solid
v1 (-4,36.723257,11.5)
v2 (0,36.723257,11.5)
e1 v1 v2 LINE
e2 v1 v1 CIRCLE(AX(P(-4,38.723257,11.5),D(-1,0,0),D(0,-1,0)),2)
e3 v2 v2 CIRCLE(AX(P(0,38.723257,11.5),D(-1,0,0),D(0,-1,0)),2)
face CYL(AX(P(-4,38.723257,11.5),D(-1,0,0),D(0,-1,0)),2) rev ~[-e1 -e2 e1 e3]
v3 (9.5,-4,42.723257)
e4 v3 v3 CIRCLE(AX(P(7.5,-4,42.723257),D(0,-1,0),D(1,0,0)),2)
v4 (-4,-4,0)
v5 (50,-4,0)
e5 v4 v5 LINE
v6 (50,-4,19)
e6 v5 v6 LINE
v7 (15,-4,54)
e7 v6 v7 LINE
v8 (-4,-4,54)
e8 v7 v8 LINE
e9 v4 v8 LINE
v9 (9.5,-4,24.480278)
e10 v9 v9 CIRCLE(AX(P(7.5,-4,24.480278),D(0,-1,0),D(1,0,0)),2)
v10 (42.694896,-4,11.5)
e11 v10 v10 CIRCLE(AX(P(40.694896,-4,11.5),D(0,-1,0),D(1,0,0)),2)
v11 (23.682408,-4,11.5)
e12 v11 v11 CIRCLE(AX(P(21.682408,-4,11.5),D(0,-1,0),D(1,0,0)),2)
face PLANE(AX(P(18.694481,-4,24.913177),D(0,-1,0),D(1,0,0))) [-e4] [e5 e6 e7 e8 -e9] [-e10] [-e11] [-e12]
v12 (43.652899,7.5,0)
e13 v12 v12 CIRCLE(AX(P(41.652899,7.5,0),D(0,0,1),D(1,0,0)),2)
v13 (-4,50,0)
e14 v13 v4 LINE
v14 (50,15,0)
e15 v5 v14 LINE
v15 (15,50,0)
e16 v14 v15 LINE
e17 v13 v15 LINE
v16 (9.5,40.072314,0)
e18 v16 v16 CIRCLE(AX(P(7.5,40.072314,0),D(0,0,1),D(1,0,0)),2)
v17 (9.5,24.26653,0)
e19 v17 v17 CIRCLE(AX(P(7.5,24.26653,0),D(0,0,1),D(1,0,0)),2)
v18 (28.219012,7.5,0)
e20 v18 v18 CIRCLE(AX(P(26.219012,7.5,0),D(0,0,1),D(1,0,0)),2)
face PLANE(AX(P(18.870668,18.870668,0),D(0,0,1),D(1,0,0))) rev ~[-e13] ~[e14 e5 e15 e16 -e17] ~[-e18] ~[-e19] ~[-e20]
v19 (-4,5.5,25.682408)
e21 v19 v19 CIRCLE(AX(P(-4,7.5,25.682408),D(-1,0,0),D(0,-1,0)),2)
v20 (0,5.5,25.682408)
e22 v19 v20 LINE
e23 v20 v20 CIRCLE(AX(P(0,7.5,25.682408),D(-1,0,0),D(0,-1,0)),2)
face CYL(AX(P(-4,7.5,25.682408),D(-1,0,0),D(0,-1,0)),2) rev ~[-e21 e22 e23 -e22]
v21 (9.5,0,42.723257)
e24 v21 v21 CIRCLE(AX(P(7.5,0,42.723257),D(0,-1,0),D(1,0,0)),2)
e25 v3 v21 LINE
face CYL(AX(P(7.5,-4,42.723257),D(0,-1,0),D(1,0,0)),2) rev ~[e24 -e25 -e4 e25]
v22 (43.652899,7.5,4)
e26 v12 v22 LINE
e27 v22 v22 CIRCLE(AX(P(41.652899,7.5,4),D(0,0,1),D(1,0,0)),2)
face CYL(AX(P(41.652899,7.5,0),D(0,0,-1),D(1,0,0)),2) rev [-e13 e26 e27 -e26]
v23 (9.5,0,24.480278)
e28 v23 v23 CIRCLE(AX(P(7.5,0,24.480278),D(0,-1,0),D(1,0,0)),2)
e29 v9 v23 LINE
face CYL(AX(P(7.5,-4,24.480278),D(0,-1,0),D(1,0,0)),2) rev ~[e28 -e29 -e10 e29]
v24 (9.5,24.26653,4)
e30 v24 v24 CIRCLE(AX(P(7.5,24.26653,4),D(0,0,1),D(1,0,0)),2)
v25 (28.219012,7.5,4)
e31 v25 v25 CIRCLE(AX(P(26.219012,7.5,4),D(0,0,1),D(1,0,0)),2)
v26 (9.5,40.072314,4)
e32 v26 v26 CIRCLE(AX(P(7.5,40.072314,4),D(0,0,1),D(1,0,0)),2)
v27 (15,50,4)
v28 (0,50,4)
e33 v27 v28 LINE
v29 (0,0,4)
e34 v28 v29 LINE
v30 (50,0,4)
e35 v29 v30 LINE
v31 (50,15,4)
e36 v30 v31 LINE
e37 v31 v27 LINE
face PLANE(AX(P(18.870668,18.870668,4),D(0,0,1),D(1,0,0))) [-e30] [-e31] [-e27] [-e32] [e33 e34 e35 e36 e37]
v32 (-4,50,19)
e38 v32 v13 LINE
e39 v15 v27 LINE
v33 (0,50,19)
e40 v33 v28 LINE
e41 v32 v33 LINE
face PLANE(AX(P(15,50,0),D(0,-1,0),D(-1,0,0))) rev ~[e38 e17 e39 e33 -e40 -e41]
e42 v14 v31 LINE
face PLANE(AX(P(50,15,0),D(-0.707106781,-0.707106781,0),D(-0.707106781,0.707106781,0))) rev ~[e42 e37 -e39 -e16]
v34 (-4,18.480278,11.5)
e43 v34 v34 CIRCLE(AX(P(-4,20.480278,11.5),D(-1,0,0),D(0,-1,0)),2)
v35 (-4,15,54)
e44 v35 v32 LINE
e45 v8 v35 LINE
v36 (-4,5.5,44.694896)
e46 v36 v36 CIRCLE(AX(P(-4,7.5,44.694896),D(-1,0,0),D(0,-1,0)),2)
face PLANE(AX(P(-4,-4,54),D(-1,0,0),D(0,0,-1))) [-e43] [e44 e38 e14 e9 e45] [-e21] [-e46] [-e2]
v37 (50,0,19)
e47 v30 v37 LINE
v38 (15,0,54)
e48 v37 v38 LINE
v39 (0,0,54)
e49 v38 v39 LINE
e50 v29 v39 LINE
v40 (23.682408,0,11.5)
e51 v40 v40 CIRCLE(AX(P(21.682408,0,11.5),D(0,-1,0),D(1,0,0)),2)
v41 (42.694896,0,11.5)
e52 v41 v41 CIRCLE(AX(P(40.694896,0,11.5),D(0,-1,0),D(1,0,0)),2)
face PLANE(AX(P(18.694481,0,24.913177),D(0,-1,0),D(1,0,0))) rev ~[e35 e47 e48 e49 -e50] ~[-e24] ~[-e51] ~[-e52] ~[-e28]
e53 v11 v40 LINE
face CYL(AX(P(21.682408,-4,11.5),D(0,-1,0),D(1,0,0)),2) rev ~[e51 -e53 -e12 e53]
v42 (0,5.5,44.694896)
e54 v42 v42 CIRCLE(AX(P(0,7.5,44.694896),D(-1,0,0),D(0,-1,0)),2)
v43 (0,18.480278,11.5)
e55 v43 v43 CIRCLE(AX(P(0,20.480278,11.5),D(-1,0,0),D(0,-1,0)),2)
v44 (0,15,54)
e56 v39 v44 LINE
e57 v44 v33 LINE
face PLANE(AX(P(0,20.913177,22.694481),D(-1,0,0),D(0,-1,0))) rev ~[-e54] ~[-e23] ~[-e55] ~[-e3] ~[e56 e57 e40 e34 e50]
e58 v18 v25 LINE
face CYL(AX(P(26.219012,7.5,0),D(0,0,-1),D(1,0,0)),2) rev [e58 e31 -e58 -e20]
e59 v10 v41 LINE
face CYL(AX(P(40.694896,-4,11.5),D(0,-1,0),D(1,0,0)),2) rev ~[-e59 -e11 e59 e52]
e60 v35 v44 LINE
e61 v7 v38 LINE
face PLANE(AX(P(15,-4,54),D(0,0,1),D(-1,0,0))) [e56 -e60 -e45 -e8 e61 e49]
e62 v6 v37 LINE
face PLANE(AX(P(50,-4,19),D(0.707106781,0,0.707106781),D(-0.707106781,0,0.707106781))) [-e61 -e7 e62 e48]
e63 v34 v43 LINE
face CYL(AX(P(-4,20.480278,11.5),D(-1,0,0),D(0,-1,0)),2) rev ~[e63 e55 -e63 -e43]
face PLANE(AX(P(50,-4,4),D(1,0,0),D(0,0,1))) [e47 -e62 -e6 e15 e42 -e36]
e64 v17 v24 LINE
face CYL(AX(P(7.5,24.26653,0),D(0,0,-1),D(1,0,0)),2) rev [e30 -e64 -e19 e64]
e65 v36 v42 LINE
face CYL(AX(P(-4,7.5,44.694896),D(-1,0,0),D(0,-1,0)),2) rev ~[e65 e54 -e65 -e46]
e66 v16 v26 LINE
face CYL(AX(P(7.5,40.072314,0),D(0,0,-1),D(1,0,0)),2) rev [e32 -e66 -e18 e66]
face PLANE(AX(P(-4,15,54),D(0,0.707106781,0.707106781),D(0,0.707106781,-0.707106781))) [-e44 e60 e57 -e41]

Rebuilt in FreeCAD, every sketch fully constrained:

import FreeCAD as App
import Part
import Sketcher


def add_polygon(sketch, points):
    """Adds a closed chain of lines whose ends are joined by coincident constraints."""
    first, n = sketch.GeometryCount, len(points)
    for a, b in zip(points, points[1:] + points[:1]):
        sketch.addGeometry(Part.LineSegment(App.Vector(*a, 0), App.Vector(*b, 0)), False)
    for i in range(n):
        sketch.addConstraint(Sketcher.Constraint("Coincident", first + i, 2, first + (i + 1) % n, 1))

doc = App.newDocument("Part")
body = doc.addObject("PartDesign::Body", "Body")

# Sketch on XY plane
sketch1 = body.newObject("Sketcher::SketchObject", "Sketch")
sketch1.AttachmentSupport = (doc.getObject("XY_Plane"), [""])
sketch1.MapMode = "FlatFace"
add_polygon(sketch1, [(15, 50), (-4, 50), (-4, -4), (50, -4), (50, 15)])  # lines 0-4
sketch1.addGeometry(Part.Circle(App.Vector(26.2, 7.5, 0), App.Vector(0, 0, 1), 2), False)  # 5
sketch1.addGeometry(Part.Circle(App.Vector(41.7, 7.5, 0), App.Vector(0, 0, 1), 2), False)  # 6
sketch1.addGeometry(Part.Circle(App.Vector(7.5, 24.3, 0), App.Vector(0, 0, 1), 2), False)  # 7
sketch1.addGeometry(Part.Circle(App.Vector(7.5, 40.1, 0), App.Vector(0, 0, 1), 2), False)  # 8
sketch1.addConstraint([
    Sketcher.Constraint("Horizontal", 0),
    Sketcher.Constraint("Vertical", 1),
    Sketcher.Constraint("Horizontal", 2),
    Sketcher.Constraint("Vertical", 3),
    Sketcher.Constraint("Equal", 5, 6),
    Sketcher.Constraint("Equal", 6, 7),
    Sketcher.Constraint("Equal", 7, 8),
    Sketcher.Constraint("Horizontal", 5, 3, 6, 3),
    Sketcher.Constraint("Vertical", 7, 3, 8, 3),
    Sketcher.Constraint("Equal", 2, 1),
    Sketcher.Constraint("Equal", 0, 3),
    Sketcher.Constraint("Diameter", 5, 4.0),
    Sketcher.Constraint("DistanceX", 0, 2, 0, 1, 19.0),
    Sketcher.Constraint("DistanceX", 2, 1, 2, 2, 54.0),
    Sketcher.Constraint("DistanceX", 0, 2, -1, 1, 4.0),
    Sketcher.Constraint("DistanceY", -1, 1, 0, 2, 50.0),
    Sketcher.Constraint("DistanceY", -1, 1, 5, 3, 7.5),
    Sketcher.Constraint("DistanceX", -1, 1, 7, 3, 7.5),
    Sketcher.Constraint("DistanceX", -1, 1, 6, 3, 41.652899),
    Sketcher.Constraint("DistanceX", -1, 1, 5, 3, 26.219012),
    Sketcher.Constraint("DistanceY", -1, 1, 7, 3, 24.26653),
    Sketcher.Constraint("DistanceY", -1, 1, 8, 3, 40.072314),
])
pad1 = body.newObject("PartDesign::Pad", "Pad")
pad1.Profile = sketch1
pad1.Length = 4

# Sketch on XZ plane
sketch2 = body.newObject("Sketcher::SketchObject", "Sketch001")
sketch2.AttachmentSupport = (doc.getObject("XZ_Plane"), [""])
sketch2.MapMode = "FlatFace"
sketch2.AttachmentOffset = App.Placement(App.Vector(0, 0, 4), App.Rotation())
add_polygon(sketch2, [(-4, 54), (-4, 4), (50, 4), (50, 19), (15, 54)])  # lines 0-4
sketch2.addGeometry(Part.Circle(App.Vector(21.7, 11.5, 0), App.Vector(0, 0, 1), 2), False)  # 5
sketch2.addGeometry(Part.Circle(App.Vector(7.5, 24.5, 0), App.Vector(0, 0, 1), 2), False)  # 6
sketch2.addGeometry(Part.Circle(App.Vector(40.7, 11.5, 0), App.Vector(0, 0, 1), 2), False)  # 7
sketch2.addGeometry(Part.Circle(App.Vector(7.5, 42.7, 0), App.Vector(0, 0, 1), 2), False)  # 8
sketch2.addConstraint([
    Sketcher.Constraint("Vertical", 0),
    Sketcher.Constraint("Horizontal", 1),
    Sketcher.Constraint("Vertical", 2),
    Sketcher.Constraint("Horizontal", 4),
    Sketcher.Constraint("Equal", 5, 6),
    Sketcher.Constraint("Equal", 6, 7),
    Sketcher.Constraint("Equal", 7, 8),
    Sketcher.Constraint("Horizontal", 5, 3, 7, 3),
    Sketcher.Constraint("Vertical", 6, 3, 8, 3),
    Sketcher.Constraint("Diameter", 5, 4.0),
    Sketcher.Constraint("DistanceX", 1, 1, 1, 2, 54.0),
    Sketcher.Constraint("DistanceX", 4, 2, 4, 1, 19.0),
    Sketcher.Constraint("DistanceY", 0, 2, 0, 1, 50.0),
    Sketcher.Constraint("DistanceY", 2, 1, 2, 2, 15.0),
    Sketcher.Constraint("DistanceX", 0, 2, -1, 1, 4.0),
    Sketcher.Constraint("DistanceY", -1, 1, 0, 2, 4.0),
    Sketcher.Constraint("DistanceY", -1, 1, 5, 3, 11.5),
    Sketcher.Constraint("DistanceX", -1, 1, 6, 3, 7.5),
    Sketcher.Constraint("DistanceX", 5, 3, 7, 3, 19.012488),
    Sketcher.Constraint("DistanceY", 6, 3, 8, 3, 18.242979),
    Sketcher.Constraint("DistanceX", -1, 1, 5, 3, 21.682408),
    Sketcher.Constraint("DistanceY", -1, 1, 6, 3, 24.480278),
])
pad2 = body.newObject("PartDesign::Pad", "Pad001")
pad2.Profile = sketch2
pad2.Length = 4
pad2.Reversed = True

# Sketch on YZ plane
sketch3 = body.newObject("Sketcher::SketchObject", "Sketch002")
sketch3.AttachmentSupport = (doc.getObject("YZ_Plane"), [""])
sketch3.MapMode = "FlatFace"
sketch3.AttachmentOffset = App.Placement(App.Vector(0, 0, -4), App.Rotation())
add_polygon(sketch3, [(50, 0), (0, 0), (0, 54), (15, 54), (50, 19)])  # lines 0-4
sketch3.addGeometry(Part.Circle(App.Vector(38.7, 11.5, 0), App.Vector(0, 0, 1), 2), False)  # 5
sketch3.addGeometry(Part.Circle(App.Vector(20.5, 11.5, 0), App.Vector(0, 0, 1), 2), False)  # 6
sketch3.addGeometry(Part.Circle(App.Vector(7.5, 25.7, 0), App.Vector(0, 0, 1), 2), False)  # 7
sketch3.addGeometry(Part.Circle(App.Vector(7.5, 44.7, 0), App.Vector(0, 0, 1), 2), False)  # 8
sketch3.addConstraint([
    Sketcher.Constraint("Horizontal", 0),
    Sketcher.Constraint("Vertical", 1),
    Sketcher.Constraint("Horizontal", 2),
    Sketcher.Constraint("Vertical", 4),
    Sketcher.Constraint("Coincident", 0, 2, -1, 1),
    Sketcher.Constraint("Equal", 5, 6),
    Sketcher.Constraint("Equal", 6, 7),
    Sketcher.Constraint("Equal", 7, 8),
    Sketcher.Constraint("Horizontal", 5, 3, 6, 3),
    Sketcher.Constraint("Vertical", 7, 3, 8, 3),
    Sketcher.Constraint("Diameter", 5, 4.0),
    Sketcher.Constraint("DistanceX", 0, 2, 0, 1, 50.0),
    Sketcher.Constraint("DistanceX", 2, 1, 2, 2, 15.0),
    Sketcher.Constraint("DistanceY", 1, 1, 1, 2, 54.0),
    Sketcher.Constraint("DistanceY", 4, 2, 4, 1, 19.0),
    Sketcher.Constraint("DistanceY", -1, 1, 5, 3, 11.5),
    Sketcher.Constraint("DistanceX", -1, 1, 7, 3, 7.5),
    Sketcher.Constraint("DistanceX", 6, 3, 5, 3, 18.242979),
    Sketcher.Constraint("DistanceY", 7, 3, 8, 3, 19.012488),
    Sketcher.Constraint("DistanceX", -1, 1, 5, 3, 38.723257),
    Sketcher.Constraint("DistanceY", -1, 1, 7, 3, 25.682408),
])
pad3 = body.newObject("PartDesign::Pad", "Pad002")
pad3.Profile = sketch3
pad3.Length = 4

doc.recompute()
